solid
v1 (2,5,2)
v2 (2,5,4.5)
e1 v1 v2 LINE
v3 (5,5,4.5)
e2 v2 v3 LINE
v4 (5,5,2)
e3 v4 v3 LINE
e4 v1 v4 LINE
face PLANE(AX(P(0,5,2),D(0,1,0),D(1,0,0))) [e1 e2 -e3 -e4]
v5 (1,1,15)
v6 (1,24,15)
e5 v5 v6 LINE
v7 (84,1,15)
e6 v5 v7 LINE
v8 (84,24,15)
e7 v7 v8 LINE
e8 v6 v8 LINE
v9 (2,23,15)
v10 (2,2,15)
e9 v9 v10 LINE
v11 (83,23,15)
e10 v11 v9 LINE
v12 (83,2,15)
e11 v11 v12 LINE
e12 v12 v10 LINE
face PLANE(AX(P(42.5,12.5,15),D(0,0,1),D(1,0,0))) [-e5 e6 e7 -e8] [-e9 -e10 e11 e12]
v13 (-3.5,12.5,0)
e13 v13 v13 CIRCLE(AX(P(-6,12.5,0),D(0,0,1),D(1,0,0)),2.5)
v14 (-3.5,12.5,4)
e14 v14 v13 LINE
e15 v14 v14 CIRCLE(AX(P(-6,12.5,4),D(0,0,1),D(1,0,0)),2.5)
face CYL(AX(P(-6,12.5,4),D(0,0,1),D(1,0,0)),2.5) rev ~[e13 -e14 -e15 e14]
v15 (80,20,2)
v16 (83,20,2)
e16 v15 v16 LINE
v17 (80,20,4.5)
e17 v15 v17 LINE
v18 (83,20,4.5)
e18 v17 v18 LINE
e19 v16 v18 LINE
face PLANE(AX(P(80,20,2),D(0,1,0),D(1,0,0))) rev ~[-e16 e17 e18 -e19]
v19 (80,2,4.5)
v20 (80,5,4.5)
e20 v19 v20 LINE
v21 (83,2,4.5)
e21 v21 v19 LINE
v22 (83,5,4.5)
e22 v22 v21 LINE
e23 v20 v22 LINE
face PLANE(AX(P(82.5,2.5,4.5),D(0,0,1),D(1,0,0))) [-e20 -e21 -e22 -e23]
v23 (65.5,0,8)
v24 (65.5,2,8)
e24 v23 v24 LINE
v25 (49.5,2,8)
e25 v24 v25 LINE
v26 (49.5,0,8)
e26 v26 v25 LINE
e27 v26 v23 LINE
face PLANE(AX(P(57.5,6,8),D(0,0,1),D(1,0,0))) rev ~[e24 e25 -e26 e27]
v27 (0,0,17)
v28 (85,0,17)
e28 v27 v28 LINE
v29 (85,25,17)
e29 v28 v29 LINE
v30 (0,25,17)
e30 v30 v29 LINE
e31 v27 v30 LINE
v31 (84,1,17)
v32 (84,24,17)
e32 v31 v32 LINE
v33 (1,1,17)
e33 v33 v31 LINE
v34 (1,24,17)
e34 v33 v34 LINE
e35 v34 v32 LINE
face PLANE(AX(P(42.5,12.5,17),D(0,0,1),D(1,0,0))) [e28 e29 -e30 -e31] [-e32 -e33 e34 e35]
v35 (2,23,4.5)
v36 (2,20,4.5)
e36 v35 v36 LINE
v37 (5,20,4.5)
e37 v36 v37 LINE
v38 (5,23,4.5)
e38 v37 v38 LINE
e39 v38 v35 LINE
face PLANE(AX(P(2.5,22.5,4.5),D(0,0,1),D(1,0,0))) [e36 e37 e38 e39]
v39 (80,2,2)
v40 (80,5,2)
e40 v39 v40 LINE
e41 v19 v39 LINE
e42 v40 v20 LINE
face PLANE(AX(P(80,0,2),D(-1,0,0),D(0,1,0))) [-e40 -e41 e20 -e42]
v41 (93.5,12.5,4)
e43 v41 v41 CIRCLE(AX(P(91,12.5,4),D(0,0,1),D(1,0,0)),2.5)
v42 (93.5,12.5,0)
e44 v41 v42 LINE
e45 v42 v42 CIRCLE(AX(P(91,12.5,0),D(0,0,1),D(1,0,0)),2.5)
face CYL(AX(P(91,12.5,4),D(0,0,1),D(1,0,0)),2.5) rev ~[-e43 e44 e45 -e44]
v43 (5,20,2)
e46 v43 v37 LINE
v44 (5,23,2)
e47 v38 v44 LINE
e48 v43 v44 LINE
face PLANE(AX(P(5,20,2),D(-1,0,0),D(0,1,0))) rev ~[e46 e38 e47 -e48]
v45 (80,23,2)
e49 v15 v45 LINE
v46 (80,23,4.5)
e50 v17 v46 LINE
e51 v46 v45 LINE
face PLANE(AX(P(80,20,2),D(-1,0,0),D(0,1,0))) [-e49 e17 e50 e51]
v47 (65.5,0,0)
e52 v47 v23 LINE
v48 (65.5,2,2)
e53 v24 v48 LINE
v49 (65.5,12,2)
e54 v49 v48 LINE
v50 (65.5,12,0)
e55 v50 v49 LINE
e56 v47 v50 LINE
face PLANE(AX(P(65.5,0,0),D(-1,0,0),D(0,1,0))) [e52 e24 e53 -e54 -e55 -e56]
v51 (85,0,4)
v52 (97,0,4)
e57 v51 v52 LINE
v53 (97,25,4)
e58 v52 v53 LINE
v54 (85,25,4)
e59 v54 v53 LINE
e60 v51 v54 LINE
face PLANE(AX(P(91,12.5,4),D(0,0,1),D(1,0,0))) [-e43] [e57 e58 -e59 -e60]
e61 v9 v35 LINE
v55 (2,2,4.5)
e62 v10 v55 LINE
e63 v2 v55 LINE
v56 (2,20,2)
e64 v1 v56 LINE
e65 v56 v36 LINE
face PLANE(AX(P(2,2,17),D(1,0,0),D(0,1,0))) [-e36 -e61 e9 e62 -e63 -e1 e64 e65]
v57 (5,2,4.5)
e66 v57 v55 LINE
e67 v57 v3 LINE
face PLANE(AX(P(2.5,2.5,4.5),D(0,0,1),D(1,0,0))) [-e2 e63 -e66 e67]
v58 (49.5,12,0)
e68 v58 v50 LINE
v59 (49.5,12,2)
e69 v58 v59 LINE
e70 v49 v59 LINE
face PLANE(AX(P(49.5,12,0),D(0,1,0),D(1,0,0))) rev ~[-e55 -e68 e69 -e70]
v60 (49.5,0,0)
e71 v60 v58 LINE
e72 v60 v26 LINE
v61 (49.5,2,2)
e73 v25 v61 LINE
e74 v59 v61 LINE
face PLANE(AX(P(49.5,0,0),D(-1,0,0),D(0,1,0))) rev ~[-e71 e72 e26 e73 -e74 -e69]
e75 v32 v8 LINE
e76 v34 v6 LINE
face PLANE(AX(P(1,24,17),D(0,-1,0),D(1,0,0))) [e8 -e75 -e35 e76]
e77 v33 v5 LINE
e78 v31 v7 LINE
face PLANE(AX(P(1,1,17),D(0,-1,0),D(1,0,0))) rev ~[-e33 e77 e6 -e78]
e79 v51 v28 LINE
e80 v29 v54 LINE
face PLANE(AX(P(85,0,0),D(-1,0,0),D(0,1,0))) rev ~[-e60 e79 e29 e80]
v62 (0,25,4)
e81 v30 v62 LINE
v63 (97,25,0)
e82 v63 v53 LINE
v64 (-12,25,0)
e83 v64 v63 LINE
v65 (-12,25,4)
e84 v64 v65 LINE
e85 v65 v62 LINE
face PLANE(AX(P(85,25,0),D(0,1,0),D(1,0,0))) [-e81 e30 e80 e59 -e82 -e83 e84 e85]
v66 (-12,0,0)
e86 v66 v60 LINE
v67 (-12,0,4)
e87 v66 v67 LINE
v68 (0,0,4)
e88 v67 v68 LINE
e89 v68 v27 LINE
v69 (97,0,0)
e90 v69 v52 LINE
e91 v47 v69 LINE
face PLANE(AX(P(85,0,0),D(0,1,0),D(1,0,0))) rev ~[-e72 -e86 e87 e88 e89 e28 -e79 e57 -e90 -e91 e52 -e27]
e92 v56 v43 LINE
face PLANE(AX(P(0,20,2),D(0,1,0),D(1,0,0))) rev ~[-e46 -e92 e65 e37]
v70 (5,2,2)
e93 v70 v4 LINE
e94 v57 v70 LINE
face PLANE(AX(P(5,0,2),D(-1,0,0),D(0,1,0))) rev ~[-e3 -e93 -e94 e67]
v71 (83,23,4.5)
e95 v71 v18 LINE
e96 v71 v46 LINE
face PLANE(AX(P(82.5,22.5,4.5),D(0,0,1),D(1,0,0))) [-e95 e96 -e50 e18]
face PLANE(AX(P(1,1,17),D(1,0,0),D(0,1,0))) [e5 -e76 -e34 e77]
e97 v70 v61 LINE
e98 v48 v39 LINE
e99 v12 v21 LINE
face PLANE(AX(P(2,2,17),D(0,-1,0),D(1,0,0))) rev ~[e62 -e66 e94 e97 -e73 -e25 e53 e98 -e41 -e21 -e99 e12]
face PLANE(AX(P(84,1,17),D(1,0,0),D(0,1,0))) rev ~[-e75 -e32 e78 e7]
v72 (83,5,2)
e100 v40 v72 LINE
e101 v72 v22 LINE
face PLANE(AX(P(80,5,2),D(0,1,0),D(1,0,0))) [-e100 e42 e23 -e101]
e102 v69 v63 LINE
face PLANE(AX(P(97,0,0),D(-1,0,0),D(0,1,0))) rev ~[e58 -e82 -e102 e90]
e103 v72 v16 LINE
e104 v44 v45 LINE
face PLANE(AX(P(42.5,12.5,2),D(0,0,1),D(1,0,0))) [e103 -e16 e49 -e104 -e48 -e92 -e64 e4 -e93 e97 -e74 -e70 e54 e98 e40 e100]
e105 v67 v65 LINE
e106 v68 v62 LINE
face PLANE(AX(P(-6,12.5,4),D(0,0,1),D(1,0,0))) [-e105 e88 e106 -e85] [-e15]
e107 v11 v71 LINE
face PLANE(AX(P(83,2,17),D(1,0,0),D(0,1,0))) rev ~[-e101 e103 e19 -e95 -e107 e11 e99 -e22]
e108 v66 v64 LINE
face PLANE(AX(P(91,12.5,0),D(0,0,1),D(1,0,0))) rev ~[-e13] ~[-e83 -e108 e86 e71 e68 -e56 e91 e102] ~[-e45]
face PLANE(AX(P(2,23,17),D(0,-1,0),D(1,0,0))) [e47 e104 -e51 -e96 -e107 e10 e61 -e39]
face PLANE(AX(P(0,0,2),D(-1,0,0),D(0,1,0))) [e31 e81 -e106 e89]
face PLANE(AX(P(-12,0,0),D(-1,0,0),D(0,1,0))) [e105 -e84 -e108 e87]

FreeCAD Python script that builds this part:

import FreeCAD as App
import Part
import Sketcher

doc = App.newDocument("Part")
body = doc.addObject("PartDesign::Body", "Body")

sketch1 = body.newObject("Sketcher::SketchObject", "Sketch")
sketch1.AttachmentSupport = (doc.getObject("XY_Plane"), [""])
sketch1.MapMode = "FlatFace"
sketch1.addGeometry([
    Part.LineSegment(App.Vector(0, 25, 0), App.Vector(0, 0, 0)),
    Part.LineSegment(App.Vector(0, 0, 0), App.Vector(85, 0, 0)),
    Part.LineSegment(App.Vector(85, 0, 0), App.Vector(85, 25, 0)),
    Part.LineSegment(App.Vector(85, 25, 0), App.Vector(0, 25, 0)),
], False)
sketch1.addConstraint([
    Sketcher.Constraint("Coincident", 0, 2, 1, 1),
    Sketcher.Constraint("Coincident", 1, 2, 2, 1),
    Sketcher.Constraint("Coincident", 2, 2, 3, 1),
    Sketcher.Constraint("Coincident", 3, 2, 0, 1),
    Sketcher.Constraint("Vertical", 0),
    Sketcher.Constraint("Horizontal", 1),
    Sketcher.Constraint("Vertical", 2),
    Sketcher.Constraint("Horizontal", 3),
    Sketcher.Constraint("Coincident", 0, 2, -1, 1),
    Sketcher.Constraint("DistanceX", 1, 1, 1, 2, 85.0),
    Sketcher.Constraint("DistanceY", 0, 2, 0, 1, 25.0),
])
pad1 = body.newObject("PartDesign::Pad", "Pad")
pad1.Profile = sketch1
pad1.Length = 17

sketch2 = body.newObject("Sketcher::SketchObject", "Sketch001")
sketch2.AttachmentSupport = (doc.getObject("XY_Plane"), [""])
sketch2.MapMode = "FlatFace"
sketch2.AttachmentOffset = App.Placement(App.Vector(0, 0, 17), App.Rotation())
sketch2.addGeometry([
    Part.LineSegment(App.Vector(2, 23, 0), App.Vector(2, 2, 0)),
    Part.LineSegment(App.Vector(2, 2, 0), App.Vector(83, 2, 0)),
    Part.LineSegment(App.Vector(83, 2, 0), App.Vector(83, 23, 0)),
    Part.LineSegment(App.Vector(83, 23, 0), App.Vector(2, 23, 0)),
], False)
sketch2.addConstraint([
    Sketcher.Constraint("Coincident", 0, 2, 1, 1),
    Sketcher.Constraint("Coincident", 1, 2, 2, 1),
    Sketcher.Constraint("Coincident", 2, 2, 3, 1),
    Sketcher.Constraint("Coincident", 3, 2, 0, 1),
    Sketcher.Constraint("Vertical", 0),
    Sketcher.Constraint("Horizontal", 1),
    Sketcher.Constraint("Vertical", 2),
    Sketcher.Constraint("Horizontal", 3),
    Sketcher.Constraint("DistanceX", 1, 1, 1, 2, 81.0),
    Sketcher.Constraint("DistanceY", 0, 2, 0, 1, 21.0),
    Sketcher.Constraint("DistanceX", -1, 1, 0, 2, 2.0),
    Sketcher.Constraint("DistanceY", -1, 1, 0, 2, 2.0),
])
pocket1 = body.newObject("PartDesign::Pocket", "Pocket")
pocket1.Profile = sketch2
pocket1.Length = 15

sketch3 = body.newObject("Sketcher::SketchObject", "Sketch002")
sketch3.AttachmentSupport = (doc.getObject("XY_Plane"), [""])
sketch3.MapMode = "FlatFace"
sketch3.addGeometry([
    Part.LineSegment(App.Vector(49.5, 12, 0), App.Vector(49.5, 0, 0)),
    Part.LineSegment(App.Vector(49.5, 0, 0), App.Vector(65.5, 0, 0)),
    Part.LineSegment(App.Vector(65.5, 0, 0), App.Vector(65.5, 12, 0)),
    Part.LineSegment(App.Vector(65.5, 12, 0), App.Vector(49.5, 12, 0)),
], False)
sketch3.addConstraint([
    Sketcher.Constraint("Coincident", 0, 2, 1, 1),
    Sketcher.Constraint("Coincident", 1, 2, 2, 1),
    Sketcher.Constraint("Coincident", 2, 2, 3, 1),
    Sketcher.Constraint("Coincident", 3, 2, 0, 1),
    Sketcher.Constraint("Vertical", 0),
    Sketcher.Constraint("Horizontal", 1),
    Sketcher.Constraint("Vertical", 2),
    Sketcher.Constraint("Horizontal", 3),
    Sketcher.Constraint("PointOnObject", 0, 2, -1),
    Sketcher.Constraint("DistanceX", 1, 1, 1, 2, 16.0),
    Sketcher.Constraint("DistanceY", 0, 2, 0, 1, 12.0),
    Sketcher.Constraint("DistanceX", -1, 1, 0, 2, 49.5),
])
pocket2 = body.newObject("PartDesign::Pocket", "Pocket001")
pocket2.Profile = sketch3
pocket2.Length = 8
pocket2.Reversed = True

sketch4 = body.newObject("Sketcher::SketchObject", "Sketch003")
sketch4.AttachmentSupport = (doc.getObject("XY_Plane"), [""])
sketch4.MapMode = "FlatFace"
sketch4.AttachmentOffset = App.Placement(App.Vector(0, 0, 17), App.Rotation())
sketch4.addGeometry([
    Part.LineSegment(App.Vector(1, 24, 0), App.Vector(1, 1, 0)),
    Part.LineSegment(App.Vector(1, 1, 0), App.Vector(84, 1, 0)),
    Part.LineSegment(App.Vector(84, 1, 0), App.Vector(84, 24, 0)),
    Part.LineSegment(App.Vector(84, 24, 0), App.Vector(1, 24, 0)),
], False)
sketch4.addConstraint([
    Sketcher.Constraint("Coincident", 0, 2, 1, 1),
    Sketcher.Constraint("Coincident", 1, 2, 2, 1),
    Sketcher.Constraint("Coincident", 2, 2, 3, 1),
    Sketcher.Constraint("Coincident", 3, 2, 0, 1),
    Sketcher.Constraint("Vertical", 0),
    Sketcher.Constraint("Horizontal", 1),
    Sketcher.Constraint("Vertical", 2),
    Sketcher.Constraint("Horizontal", 3),
    Sketcher.Constraint("DistanceX", 1, 1, 1, 2, 83.0),
    Sketcher.Constraint("DistanceY", 0, 2, 0, 1, 23.0),
    Sketcher.Constraint("DistanceX", -1, 1, 0, 2, 1.0),
    Sketcher.Constraint("DistanceY", -1, 1, 0, 2, 1.0),
])
pocket3 = body.newObject("PartDesign::Pocket", "Pocket002")
pocket3.Profile = sketch4
pocket3.Length = 2

sketch5 = body.newObject("Sketcher::SketchObject", "Sketch004")
sketch5.AttachmentSupport = (doc.getObject("XY_Plane"), [""])
sketch5.MapMode = "FlatFace"
sketch5.AttachmentOffset = App.Placement(App.Vector(0, 0, 2), App.Rotation())
sketch5.addGeometry([
    Part.LineSegment(App.Vector(0, 5, 0), App.Vector(0, 0, 0)),
    Part.LineSegment(App.Vector(0, 0, 0), App.Vector(5, 0, 0)),
    Part.LineSegment(App.Vector(5, 0, 0), App.Vector(5, 5, 0)),
    Part.LineSegment(App.Vector(5, 5, 0), App.Vector(0, 5, 0)),
    Part.LineSegment(App.Vector(0, 25, 0), App.Vector(0, 20, 0)),
    Part.LineSegment(App.Vector(0, 20, 0), App.Vector(5, 20, 0)),
    Part.LineSegment(App.Vector(5, 20, 0), App.Vector(5, 25, 0)),
    Part.LineSegment(App.Vector(5, 25, 0), App.Vector(0, 25, 0)),
    Part.LineSegment(App.Vector(80, 5, 0), App.Vector(80, 0, 0)),
    Part.LineSegment(App.Vector(80, 0, 0), App.Vector(85, 0, 0)),
    Part.LineSegment(App.Vector(85, 0, 0), App.Vector(85, 5, 0)),
    Part.LineSegment(App.Vector(85, 5, 0), App.Vector(80, 5, 0)),
    Part.LineSegment(App.Vector(80, 25, 0), App.Vector(80, 20, 0)),
    Part.LineSegment(App.Vector(80, 20, 0), App.Vector(85, 20, 0)),
    Part.LineSegment(App.Vector(85, 20, 0), App.Vector(85, 25, 0)),
    Part.LineSegment(App.Vector(85, 25, 0), App.Vector(80, 25, 0)),
], False)
sketch5.addConstraint([
    Sketcher.Constraint("Coincident", 0, 2, 1, 1),
    Sketcher.Constraint("Coincident", 1, 2, 2, 1),
    Sketcher.Constraint("Coincident", 2, 2, 3, 1),
    Sketcher.Constraint("Coincident", 3, 2, 0, 1),
    Sketcher.Constraint("Coincident", 4, 2, 5, 1),
    Sketcher.Constraint("Coincident", 5, 2, 6, 1),
    Sketcher.Constraint("Coincident", 6, 2, 7, 1),
    Sketcher.Constraint("Coincident", 7, 2, 4, 1),
    Sketcher.Constraint("Coincident", 8, 2, 9, 1),
    Sketcher.Constraint("Coincident", 9, 2, 10, 1),
    Sketcher.Constraint("Coincident", 10, 2, 11, 1),
    Sketcher.Constraint("Coincident", 11, 2, 8, 1),
    Sketcher.Constraint("Coincident", 12, 2, 13, 1),
    Sketcher.Constraint("Coincident", 13, 2, 14, 1),
    Sketcher.Constraint("Coincident", 14, 2, 15, 1),
    Sketcher.Constraint("Coincident", 15, 2, 12, 1),
    Sketcher.Constraint("Vertical", 0),
    Sketcher.Constraint("Horizontal", 1),
    Sketcher.Constraint("Vertical", 2),
    Sketcher.Constraint("Horizontal", 3),
    Sketcher.Constraint("Vertical", 4),
    Sketcher.Constraint("Horizontal", 5),
    Sketcher.Constraint("Vertical", 6),
    Sketcher.Constraint("Horizontal", 7),
    Sketcher.Constraint("Vertical", 8),
    Sketcher.Constraint("Horizontal", 9),
    Sketcher.Constraint("Vertical", 10),
    Sketcher.Constraint("Horizontal", 11),
    Sketcher.Constraint("Vertical", 12),
    Sketcher.Constraint("Horizontal", 13),
    Sketcher.Constraint("Vertical", 14),
    Sketcher.Constraint("Horizontal", 15),
    Sketcher.Constraint("Coincident", 0, 2, -1, 1),
    Sketcher.Constraint("PointOnObject", 4, 2, -2),
    Sketcher.Constraint("PointOnObject", 8, 2, -1),
    Sketcher.Constraint("Horizontal", 3, 2, 10, 2),
    Sketcher.Constraint("Horizontal", 5, 2, 12, 2),
    Sketcher.Constraint("Horizontal", 7, 2, 14, 2),
    Sketcher.Constraint("Vertical", 2, 2, 5, 2),
    Sketcher.Constraint("Vertical", 11, 2, 12, 2),
    Sketcher.Constraint("Vertical", 10, 2, 13, 2),
    Sketcher.Constraint("Equal", 7, 9),
    Sketcher.Constraint("Equal", 15, 0),
    Sketcher.Constraint("Equal", 2, 4),
    Sketcher.Constraint("DistanceX", 1, 1, 1, 2, 5.0),
    Sketcher.Constraint("DistanceY", -1, 1, 4, 2, 20.0),
    Sketcher.Constraint("DistanceX", -1, 1, 8, 2, 80.0),
])
pad2 = body.newObject("PartDesign::Pad", "Pad001")
pad2.Profile = sketch5
pad2.Length = 2.5

sketch6 = body.newObject("Sketcher::SketchObject", "Sketch005")
sketch6.AttachmentSupport = (doc.getObject("XY_Plane"), [""])
sketch6.MapMode = "FlatFace"
sketch6.addGeometry([
    Part.LineSegment(App.Vector(-12, 25, 0), App.Vector(-12, 0, 0)),
    Part.LineSegment(App.Vector(-12, 0, 0), App.Vector(0, 0, 0)),
    Part.LineSegment(App.Vector(0, 0, 0), App.Vector(0, 25, 0)),
    Part.LineSegment(App.Vector(0, 25, 0), App.Vector(-12, 25, 0)),
], False)
sketch6.addConstraint([
    Sketcher.Constraint("Coincident", 0, 2, 1, 1),
    Sketcher.Constraint("Coincident", 1, 2, 2, 1),
    Sketcher.Constraint("Coincident", 2, 2, 3, 1),
    Sketcher.Constraint("Coincident", 3, 2, 0, 1),
    Sketcher.Constraint("Vertical", 0),
    Sketcher.Constraint("Horizontal", 1),
    Sketcher.Constraint("Vertical", 2),
    Sketcher.Constraint("Horizontal", 3),
    Sketcher.Constraint("Coincident", 1, 2, -1, 1),
    Sketcher.Constraint("DistanceX", 1, 1, 1, 2, 12.0),
    Sketcher.Constraint("DistanceY", 0, 2, 0, 1, 25.0),
])
pad3 = body.newObject("PartDesign::Pad", "Pad002")
pad3.Profile = sketch6
pad3.Length = 4

sketch7 = body.newObject("Sketcher::SketchObject", "Sketch006")
sketch7.AttachmentSupport = (doc.getObject("XY_Plane"), [""])
sketch7.MapMode = "FlatFace"
sketch7.addGeometry([
    Part.LineSegment(App.Vector(85, 25, 0), App.Vector(85, 0, 0)),
    Part.LineSegment(App.Vector(85, 0, 0), App.Vector(97, 0, 0)),
    Part.LineSegment(App.Vector(97, 0, 0), App.Vector(97, 25, 0)),
    Part.LineSegment(App.Vector(97, 25, 0), App.Vector(85, 25, 0)),
], False)
sketch7.addConstraint([
    Sketcher.Constraint("Coincident", 0, 2, 1, 1),
    Sketcher.Constraint("Coincident", 1, 2, 2, 1),
    Sketcher.Constraint("Coincident", 2, 2, 3, 1),
    Sketcher.Constraint("Coincident", 3, 2, 0, 1),
    Sketcher.Constraint("Vertical", 0),
    Sketcher.Constraint("Horizontal", 1),
    Sketcher.Constraint("Vertical", 2),
    Sketcher.Constraint("Horizontal", 3),
    Sketcher.Constraint("PointOnObject", 0, 2, -1),
    Sketcher.Constraint("DistanceX", 1, 1, 1, 2, 12.0),
    Sketcher.Constraint("DistanceY", 0, 2, 0, 1, 25.0),
    Sketcher.Constraint("DistanceX", -1, 1, 0, 2, 85.0),
])
pad4 = body.newObject("PartDesign::Pad", "Pad003")
pad4.Profile = sketch7
pad4.Length = 4

sketch8 = body.newObject("Sketcher::SketchObject", "Sketch007")
sketch8.AttachmentSupport = (doc.getObject("XY_Plane"), [""])
sketch8.MapMode = "FlatFace"
sketch8.AttachmentOffset = App.Placement(App.Vector(0, 0, 4), App.Rotation())
sketch8.addGeometry(Part.Circle(App.Vector(-6, 12.5, 0), App.Vector(0, 0, 1), 2.5), False)
sketch8.addConstraint([
    Sketcher.Constraint("Diameter", 0, 5.0),
    Sketcher.Constraint("DistanceX", 0, 3, -1, 1, 6.0),
    Sketcher.Constraint("DistanceY", -1, 1, 0, 3, 12.5),
])
pocket4 = body.newObject("PartDesign::Pocket", "Pocket003")
pocket4.Profile = sketch8
pocket4.Type = "ThroughAll"

sketch9 = body.newObject("Sketcher::SketchObject", "Sketch008")
sketch9.AttachmentSupport = (doc.getObject("XY_Plane"), [""])
sketch9.MapMode = "FlatFace"
sketch9.AttachmentOffset = App.Placement(App.Vector(0, 0, 4), App.Rotation())
sketch9.addGeometry(Part.Circle(App.Vector(91, 12.5, 0), App.Vector(0, 0, 1), 2.5), False)
sketch9.addConstraint([
    Sketcher.Constraint("Diameter", 0, 5.0),
    Sketcher.Constraint("DistanceX", -1, 1, 0, 3, 91.0),
    Sketcher.Constraint("DistanceY", -1, 1, 0, 3, 12.5),
])
pocket5 = body.newObject("PartDesign::Pocket", "Pocket004")
pocket5.Profile = sketch9
pocket5.Type = "ThroughAll"

doc.recompute()
